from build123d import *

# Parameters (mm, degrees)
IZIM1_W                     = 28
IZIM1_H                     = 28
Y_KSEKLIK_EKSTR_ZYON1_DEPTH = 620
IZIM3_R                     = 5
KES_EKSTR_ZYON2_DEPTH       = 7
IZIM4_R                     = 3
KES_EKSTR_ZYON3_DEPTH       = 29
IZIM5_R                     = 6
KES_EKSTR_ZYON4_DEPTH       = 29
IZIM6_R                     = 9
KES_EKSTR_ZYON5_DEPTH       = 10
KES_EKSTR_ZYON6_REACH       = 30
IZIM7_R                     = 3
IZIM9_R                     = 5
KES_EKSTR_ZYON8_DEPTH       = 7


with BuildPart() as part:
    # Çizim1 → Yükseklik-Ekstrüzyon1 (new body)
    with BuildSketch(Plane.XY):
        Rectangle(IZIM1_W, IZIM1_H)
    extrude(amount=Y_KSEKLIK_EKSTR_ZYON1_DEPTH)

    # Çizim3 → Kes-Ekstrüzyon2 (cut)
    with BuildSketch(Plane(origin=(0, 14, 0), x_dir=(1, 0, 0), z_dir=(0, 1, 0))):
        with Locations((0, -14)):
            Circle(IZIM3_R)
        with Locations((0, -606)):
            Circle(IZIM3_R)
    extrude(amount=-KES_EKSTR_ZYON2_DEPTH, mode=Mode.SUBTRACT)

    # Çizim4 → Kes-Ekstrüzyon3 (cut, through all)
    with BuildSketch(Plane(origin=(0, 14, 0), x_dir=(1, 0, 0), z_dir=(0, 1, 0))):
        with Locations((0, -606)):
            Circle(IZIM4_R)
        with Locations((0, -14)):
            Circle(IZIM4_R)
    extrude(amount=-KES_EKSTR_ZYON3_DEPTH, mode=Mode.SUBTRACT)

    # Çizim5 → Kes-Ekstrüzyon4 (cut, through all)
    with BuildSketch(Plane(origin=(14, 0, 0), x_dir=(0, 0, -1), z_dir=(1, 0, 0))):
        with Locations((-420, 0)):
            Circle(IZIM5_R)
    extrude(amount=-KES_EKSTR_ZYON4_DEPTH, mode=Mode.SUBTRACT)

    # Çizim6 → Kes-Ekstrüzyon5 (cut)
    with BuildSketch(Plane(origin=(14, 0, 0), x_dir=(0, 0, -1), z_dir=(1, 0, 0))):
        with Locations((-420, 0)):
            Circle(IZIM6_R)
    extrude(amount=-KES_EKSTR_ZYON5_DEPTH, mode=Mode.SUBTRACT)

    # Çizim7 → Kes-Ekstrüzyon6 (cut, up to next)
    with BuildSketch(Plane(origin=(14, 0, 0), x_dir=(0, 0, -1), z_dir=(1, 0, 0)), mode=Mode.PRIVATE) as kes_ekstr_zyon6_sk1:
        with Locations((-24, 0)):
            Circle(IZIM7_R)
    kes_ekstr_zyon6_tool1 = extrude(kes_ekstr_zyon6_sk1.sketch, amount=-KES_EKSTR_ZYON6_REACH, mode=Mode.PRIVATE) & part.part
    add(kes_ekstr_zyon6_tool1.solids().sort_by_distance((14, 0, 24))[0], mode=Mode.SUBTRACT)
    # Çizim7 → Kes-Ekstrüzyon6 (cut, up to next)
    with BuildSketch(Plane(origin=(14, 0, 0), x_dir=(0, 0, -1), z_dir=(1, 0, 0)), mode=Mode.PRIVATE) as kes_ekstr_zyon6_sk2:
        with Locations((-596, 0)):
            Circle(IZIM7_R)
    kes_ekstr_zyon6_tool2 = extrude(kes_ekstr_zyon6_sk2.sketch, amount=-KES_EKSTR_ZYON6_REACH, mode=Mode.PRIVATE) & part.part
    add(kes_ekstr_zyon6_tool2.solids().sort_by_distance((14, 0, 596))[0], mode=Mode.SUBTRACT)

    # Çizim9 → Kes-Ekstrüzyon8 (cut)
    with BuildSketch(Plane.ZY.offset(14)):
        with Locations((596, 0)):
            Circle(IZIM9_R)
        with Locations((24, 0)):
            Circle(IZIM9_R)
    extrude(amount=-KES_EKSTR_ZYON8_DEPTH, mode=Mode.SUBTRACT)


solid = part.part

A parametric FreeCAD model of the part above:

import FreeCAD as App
import Part
import Sketcher

V = App.Vector


def add_polygon(sketch, points):
    """Adds a closed chain of lines whose ends are joined by coincident constraints."""
    first, n = sketch.GeometryCount, len(points)
    for a, b in zip(points, points[1:] + points[:1]):
        sketch.addGeometry(Part.LineSegment(App.Vector(*a, 0), App.Vector(*b, 0)), False)
    for i in range(n):
        sketch.addConstraint(Sketcher.Constraint("Coincident", first + i, 2, first + (i + 1) % n, 1))

doc = App.newDocument("Part")
body = doc.addObject("PartDesign::Body", "Body")

# Sketch on XY plane
sketch1 = body.newObject("Sketcher::SketchObject", "Sketch")
sketch1.AttachmentSupport = (doc.getObject("XY_Plane"), [""])
sketch1.MapMode = "FlatFace"
add_polygon(sketch1, [(-14, 14), (-14, -14), (14, -14), (14, 14)])  # lines 0-3
sketch1.addConstraint([
    Sketcher.Constraint("Vertical", 0),
    Sketcher.Constraint("Horizontal", 1),
    Sketcher.Constraint("Vertical", 2),
    Sketcher.Constraint("Horizontal", 3),
    Sketcher.Constraint("Symmetric", 0, 2, 2, 2, -1, 1),
    Sketcher.Constraint("Equal", 3, 0),
    Sketcher.Constraint("DistanceX", 1, 1, 1, 2, 28.0),
])
pad1 = body.newObject("PartDesign::Pad", "Pad")
pad1.Profile = sketch1
pad1.Length = 620

# Sketch on XZ plane
sketch2 = body.newObject("Sketcher::SketchObject", "Sketch001")
sketch2.AttachmentSupport = (doc.getObject("XZ_Plane"), [""])
sketch2.MapMode = "FlatFace"
sketch2.AttachmentOffset = App.Placement(V(0, 0, -14), App.Rotation())
sketch2.addGeometry([
    Part.Circle(V(0, 14, 0), V(0, 0, 1), 5),
    Part.Circle(V(0, 606, 0), V(0, 0, 1), 5),
], False)
sketch2.addConstraint([
    Sketcher.Constraint("Equal", 0, 1),
    Sketcher.Constraint("PointOnObject", 0, 3, -2),
    Sketcher.Constraint("PointOnObject", 1, 3, -2),
    Sketcher.Constraint("Diameter", 0, 10.0),
    Sketcher.Constraint("DistanceY", -1, 1, 0, 3, 14.0),
    Sketcher.Constraint("DistanceY", -1, 1, 1, 3, 606.0),
])
pocket1 = body.newObject("PartDesign::Pocket", "Pocket")
pocket1.Profile = sketch2
pocket1.Length = 7
pocket1.Reversed = True

# Sketch on XZ plane
sketch3 = body.newObject("Sketcher::SketchObject", "Sketch002")
sketch3.AttachmentSupport = (doc.getObject("XZ_Plane"), [""])
sketch3.MapMode = "FlatFace"
sketch3.AttachmentOffset = App.Placement(V(0, 0, -14), App.Rotation())
sketch3.addGeometry([
    Part.Circle(V(0, 606, 0), V(0, 0, 1), 3),
    Part.Circle(V(0, 14, 0), V(0, 0, 1), 3),
], False)
sketch3.addConstraint([
    Sketcher.Constraint("Equal", 0, 1),
    Sketcher.Constraint("PointOnObject", 0, 3, -2),
    Sketcher.Constraint("PointOnObject", 1, 3, -2),
    Sketcher.Constraint("Diameter", 0, 6.0),
    Sketcher.Constraint("DistanceY", -1, 1, 0, 3, 606.0),
    Sketcher.Constraint("DistanceY", -1, 1, 1, 3, 14.0),
])
pocket2 = body.newObject("PartDesign::Pocket", "Pocket001")
pocket2.Profile = sketch3
pocket2.Type = "ThroughAll"
pocket2.Reversed = True

# Sketch on YZ plane
sketch4 = body.newObject("Sketcher::SketchObject", "Sketch003")
sketch4.AttachmentSupport = (doc.getObject("YZ_Plane"), [""])
sketch4.MapMode = "FlatFace"
sketch4.AttachmentOffset = App.Placement(V(0, 0, 14), App.Rotation())
sketch4.addGeometry(Part.Circle(V(0, 420, 0), V(0, 0, 1), 6), False)
sketch4.addConstraint([
    Sketcher.Constraint("PointOnObject", 0, 3, -2),
    Sketcher.Constraint("Diameter", 0, 12.0),
    Sketcher.Constraint("DistanceY", -1, 1, 0, 3, 420.0),
])
pocket3 = body.newObject("PartDesign::Pocket", "Pocket002")
pocket3.Profile = sketch4
pocket3.Type = "ThroughAll"

# Sketch on YZ plane
sketch5 = body.newObject("Sketcher::SketchObject", "Sketch004")
sketch5.AttachmentSupport = (doc.getObject("YZ_Plane"), [""])
sketch5.MapMode = "FlatFace"
sketch5.AttachmentOffset = App.Placement(V(0, 0, 14), App.Rotation())
sketch5.addGeometry(Part.Circle(V(0, 420, 0), V(0, 0, 1), 9), False)
sketch5.addConstraint([
    Sketcher.Constraint("PointOnObject", 0, 3, -2),
    Sketcher.Constraint("Diameter", 0, 18.0),
    Sketcher.Constraint("DistanceY", -1, 1, 0, 3, 420.0),
])
pocket4 = body.newObject("PartDesign::Pocket", "Pocket003")
pocket4.Profile = sketch5
pocket4.Length = 10

# Sketch on YZ plane
sketch6 = body.newObject("Sketcher::SketchObject", "Sketch005")
sketch6.AttachmentSupport = (doc.getObject("YZ_Plane"), [""])
sketch6.MapMode = "FlatFace"
sketch6.AttachmentOffset = App.Placement(V(0, 0, 14), App.Rotation())
sketch6.addGeometry(Part.Circle(V(0, 24, 0), V(0, 0, 1), 3), False)
sketch6.addConstraint([
    Sketcher.Constraint("PointOnObject", 0, 3, -2),
    Sketcher.Constraint("Diameter", 0, 6.0),
    Sketcher.Constraint("DistanceY", -1, 1, 0, 3, 24.0),
])
pocket5 = body.newObject("PartDesign::Pocket", "Pocket004")
pocket5.Profile = sketch6
pocket5.Type = "UpToFirst"

# Sketch on YZ plane
sketch7 = body.newObject("Sketcher::SketchObject", "Sketch006")
sketch7.AttachmentSupport = (doc.getObject("YZ_Plane"), [""])
sketch7.MapMode = "FlatFace"
sketch7.AttachmentOffset = App.Placement(V(0, 0, 14), App.Rotation())
sketch7.addGeometry(Part.Circle(V(0, 596, 0), V(0, 0, 1), 3), False)
sketch7.addConstraint([
    Sketcher.Constraint("PointOnObject", 0, 3, -2),
    Sketcher.Constraint("Diameter", 0, 6.0),
    Sketcher.Constraint("DistanceY", -1, 1, 0, 3, 596.0),
])
pocket6 = body.newObject("PartDesign::Pocket", "Pocket005")
pocket6.Profile = sketch7
pocket6.Type = "UpToFirst"

# Sketch on YZ plane
sketch8 = body.newObject("Sketcher::SketchObject", "Sketch007")
sketch8.AttachmentSupport = (doc.getObject("YZ_Plane"), [""])
sketch8.MapMode = "FlatFace"
sketch8.AttachmentOffset = App.Placement(V(0, 0, -14), App.Rotation())
sketch8.addGeometry([
    Part.Circle(V(0, 596, 0), V(0, 0, 1), 5),
    Part.Circle(V(0, 24, 0), V(0, 0, 1), 5),
], False)
sketch8.addConstraint([
    Sketcher.Constraint("Equal", 0, 1),
    Sketcher.Constraint("PointOnObject", 0, 3, -2),
    Sketcher.Constraint("PointOnObject", 1, 3, -2),
    Sketcher.Constraint("Diameter", 0, 10.0),
    Sketcher.Constraint("DistanceY", -1, 1, 0, 3, 596.0),
    Sketcher.Constraint("DistanceY", -1, 1, 1, 3, 24.0),
])
pocket7 = body.newObject("PartDesign::Pocket", "Pocket006")
pocket7.Profile = sketch8
pocket7.Length = 7
pocket7.Reversed = True

doc.recompute()
